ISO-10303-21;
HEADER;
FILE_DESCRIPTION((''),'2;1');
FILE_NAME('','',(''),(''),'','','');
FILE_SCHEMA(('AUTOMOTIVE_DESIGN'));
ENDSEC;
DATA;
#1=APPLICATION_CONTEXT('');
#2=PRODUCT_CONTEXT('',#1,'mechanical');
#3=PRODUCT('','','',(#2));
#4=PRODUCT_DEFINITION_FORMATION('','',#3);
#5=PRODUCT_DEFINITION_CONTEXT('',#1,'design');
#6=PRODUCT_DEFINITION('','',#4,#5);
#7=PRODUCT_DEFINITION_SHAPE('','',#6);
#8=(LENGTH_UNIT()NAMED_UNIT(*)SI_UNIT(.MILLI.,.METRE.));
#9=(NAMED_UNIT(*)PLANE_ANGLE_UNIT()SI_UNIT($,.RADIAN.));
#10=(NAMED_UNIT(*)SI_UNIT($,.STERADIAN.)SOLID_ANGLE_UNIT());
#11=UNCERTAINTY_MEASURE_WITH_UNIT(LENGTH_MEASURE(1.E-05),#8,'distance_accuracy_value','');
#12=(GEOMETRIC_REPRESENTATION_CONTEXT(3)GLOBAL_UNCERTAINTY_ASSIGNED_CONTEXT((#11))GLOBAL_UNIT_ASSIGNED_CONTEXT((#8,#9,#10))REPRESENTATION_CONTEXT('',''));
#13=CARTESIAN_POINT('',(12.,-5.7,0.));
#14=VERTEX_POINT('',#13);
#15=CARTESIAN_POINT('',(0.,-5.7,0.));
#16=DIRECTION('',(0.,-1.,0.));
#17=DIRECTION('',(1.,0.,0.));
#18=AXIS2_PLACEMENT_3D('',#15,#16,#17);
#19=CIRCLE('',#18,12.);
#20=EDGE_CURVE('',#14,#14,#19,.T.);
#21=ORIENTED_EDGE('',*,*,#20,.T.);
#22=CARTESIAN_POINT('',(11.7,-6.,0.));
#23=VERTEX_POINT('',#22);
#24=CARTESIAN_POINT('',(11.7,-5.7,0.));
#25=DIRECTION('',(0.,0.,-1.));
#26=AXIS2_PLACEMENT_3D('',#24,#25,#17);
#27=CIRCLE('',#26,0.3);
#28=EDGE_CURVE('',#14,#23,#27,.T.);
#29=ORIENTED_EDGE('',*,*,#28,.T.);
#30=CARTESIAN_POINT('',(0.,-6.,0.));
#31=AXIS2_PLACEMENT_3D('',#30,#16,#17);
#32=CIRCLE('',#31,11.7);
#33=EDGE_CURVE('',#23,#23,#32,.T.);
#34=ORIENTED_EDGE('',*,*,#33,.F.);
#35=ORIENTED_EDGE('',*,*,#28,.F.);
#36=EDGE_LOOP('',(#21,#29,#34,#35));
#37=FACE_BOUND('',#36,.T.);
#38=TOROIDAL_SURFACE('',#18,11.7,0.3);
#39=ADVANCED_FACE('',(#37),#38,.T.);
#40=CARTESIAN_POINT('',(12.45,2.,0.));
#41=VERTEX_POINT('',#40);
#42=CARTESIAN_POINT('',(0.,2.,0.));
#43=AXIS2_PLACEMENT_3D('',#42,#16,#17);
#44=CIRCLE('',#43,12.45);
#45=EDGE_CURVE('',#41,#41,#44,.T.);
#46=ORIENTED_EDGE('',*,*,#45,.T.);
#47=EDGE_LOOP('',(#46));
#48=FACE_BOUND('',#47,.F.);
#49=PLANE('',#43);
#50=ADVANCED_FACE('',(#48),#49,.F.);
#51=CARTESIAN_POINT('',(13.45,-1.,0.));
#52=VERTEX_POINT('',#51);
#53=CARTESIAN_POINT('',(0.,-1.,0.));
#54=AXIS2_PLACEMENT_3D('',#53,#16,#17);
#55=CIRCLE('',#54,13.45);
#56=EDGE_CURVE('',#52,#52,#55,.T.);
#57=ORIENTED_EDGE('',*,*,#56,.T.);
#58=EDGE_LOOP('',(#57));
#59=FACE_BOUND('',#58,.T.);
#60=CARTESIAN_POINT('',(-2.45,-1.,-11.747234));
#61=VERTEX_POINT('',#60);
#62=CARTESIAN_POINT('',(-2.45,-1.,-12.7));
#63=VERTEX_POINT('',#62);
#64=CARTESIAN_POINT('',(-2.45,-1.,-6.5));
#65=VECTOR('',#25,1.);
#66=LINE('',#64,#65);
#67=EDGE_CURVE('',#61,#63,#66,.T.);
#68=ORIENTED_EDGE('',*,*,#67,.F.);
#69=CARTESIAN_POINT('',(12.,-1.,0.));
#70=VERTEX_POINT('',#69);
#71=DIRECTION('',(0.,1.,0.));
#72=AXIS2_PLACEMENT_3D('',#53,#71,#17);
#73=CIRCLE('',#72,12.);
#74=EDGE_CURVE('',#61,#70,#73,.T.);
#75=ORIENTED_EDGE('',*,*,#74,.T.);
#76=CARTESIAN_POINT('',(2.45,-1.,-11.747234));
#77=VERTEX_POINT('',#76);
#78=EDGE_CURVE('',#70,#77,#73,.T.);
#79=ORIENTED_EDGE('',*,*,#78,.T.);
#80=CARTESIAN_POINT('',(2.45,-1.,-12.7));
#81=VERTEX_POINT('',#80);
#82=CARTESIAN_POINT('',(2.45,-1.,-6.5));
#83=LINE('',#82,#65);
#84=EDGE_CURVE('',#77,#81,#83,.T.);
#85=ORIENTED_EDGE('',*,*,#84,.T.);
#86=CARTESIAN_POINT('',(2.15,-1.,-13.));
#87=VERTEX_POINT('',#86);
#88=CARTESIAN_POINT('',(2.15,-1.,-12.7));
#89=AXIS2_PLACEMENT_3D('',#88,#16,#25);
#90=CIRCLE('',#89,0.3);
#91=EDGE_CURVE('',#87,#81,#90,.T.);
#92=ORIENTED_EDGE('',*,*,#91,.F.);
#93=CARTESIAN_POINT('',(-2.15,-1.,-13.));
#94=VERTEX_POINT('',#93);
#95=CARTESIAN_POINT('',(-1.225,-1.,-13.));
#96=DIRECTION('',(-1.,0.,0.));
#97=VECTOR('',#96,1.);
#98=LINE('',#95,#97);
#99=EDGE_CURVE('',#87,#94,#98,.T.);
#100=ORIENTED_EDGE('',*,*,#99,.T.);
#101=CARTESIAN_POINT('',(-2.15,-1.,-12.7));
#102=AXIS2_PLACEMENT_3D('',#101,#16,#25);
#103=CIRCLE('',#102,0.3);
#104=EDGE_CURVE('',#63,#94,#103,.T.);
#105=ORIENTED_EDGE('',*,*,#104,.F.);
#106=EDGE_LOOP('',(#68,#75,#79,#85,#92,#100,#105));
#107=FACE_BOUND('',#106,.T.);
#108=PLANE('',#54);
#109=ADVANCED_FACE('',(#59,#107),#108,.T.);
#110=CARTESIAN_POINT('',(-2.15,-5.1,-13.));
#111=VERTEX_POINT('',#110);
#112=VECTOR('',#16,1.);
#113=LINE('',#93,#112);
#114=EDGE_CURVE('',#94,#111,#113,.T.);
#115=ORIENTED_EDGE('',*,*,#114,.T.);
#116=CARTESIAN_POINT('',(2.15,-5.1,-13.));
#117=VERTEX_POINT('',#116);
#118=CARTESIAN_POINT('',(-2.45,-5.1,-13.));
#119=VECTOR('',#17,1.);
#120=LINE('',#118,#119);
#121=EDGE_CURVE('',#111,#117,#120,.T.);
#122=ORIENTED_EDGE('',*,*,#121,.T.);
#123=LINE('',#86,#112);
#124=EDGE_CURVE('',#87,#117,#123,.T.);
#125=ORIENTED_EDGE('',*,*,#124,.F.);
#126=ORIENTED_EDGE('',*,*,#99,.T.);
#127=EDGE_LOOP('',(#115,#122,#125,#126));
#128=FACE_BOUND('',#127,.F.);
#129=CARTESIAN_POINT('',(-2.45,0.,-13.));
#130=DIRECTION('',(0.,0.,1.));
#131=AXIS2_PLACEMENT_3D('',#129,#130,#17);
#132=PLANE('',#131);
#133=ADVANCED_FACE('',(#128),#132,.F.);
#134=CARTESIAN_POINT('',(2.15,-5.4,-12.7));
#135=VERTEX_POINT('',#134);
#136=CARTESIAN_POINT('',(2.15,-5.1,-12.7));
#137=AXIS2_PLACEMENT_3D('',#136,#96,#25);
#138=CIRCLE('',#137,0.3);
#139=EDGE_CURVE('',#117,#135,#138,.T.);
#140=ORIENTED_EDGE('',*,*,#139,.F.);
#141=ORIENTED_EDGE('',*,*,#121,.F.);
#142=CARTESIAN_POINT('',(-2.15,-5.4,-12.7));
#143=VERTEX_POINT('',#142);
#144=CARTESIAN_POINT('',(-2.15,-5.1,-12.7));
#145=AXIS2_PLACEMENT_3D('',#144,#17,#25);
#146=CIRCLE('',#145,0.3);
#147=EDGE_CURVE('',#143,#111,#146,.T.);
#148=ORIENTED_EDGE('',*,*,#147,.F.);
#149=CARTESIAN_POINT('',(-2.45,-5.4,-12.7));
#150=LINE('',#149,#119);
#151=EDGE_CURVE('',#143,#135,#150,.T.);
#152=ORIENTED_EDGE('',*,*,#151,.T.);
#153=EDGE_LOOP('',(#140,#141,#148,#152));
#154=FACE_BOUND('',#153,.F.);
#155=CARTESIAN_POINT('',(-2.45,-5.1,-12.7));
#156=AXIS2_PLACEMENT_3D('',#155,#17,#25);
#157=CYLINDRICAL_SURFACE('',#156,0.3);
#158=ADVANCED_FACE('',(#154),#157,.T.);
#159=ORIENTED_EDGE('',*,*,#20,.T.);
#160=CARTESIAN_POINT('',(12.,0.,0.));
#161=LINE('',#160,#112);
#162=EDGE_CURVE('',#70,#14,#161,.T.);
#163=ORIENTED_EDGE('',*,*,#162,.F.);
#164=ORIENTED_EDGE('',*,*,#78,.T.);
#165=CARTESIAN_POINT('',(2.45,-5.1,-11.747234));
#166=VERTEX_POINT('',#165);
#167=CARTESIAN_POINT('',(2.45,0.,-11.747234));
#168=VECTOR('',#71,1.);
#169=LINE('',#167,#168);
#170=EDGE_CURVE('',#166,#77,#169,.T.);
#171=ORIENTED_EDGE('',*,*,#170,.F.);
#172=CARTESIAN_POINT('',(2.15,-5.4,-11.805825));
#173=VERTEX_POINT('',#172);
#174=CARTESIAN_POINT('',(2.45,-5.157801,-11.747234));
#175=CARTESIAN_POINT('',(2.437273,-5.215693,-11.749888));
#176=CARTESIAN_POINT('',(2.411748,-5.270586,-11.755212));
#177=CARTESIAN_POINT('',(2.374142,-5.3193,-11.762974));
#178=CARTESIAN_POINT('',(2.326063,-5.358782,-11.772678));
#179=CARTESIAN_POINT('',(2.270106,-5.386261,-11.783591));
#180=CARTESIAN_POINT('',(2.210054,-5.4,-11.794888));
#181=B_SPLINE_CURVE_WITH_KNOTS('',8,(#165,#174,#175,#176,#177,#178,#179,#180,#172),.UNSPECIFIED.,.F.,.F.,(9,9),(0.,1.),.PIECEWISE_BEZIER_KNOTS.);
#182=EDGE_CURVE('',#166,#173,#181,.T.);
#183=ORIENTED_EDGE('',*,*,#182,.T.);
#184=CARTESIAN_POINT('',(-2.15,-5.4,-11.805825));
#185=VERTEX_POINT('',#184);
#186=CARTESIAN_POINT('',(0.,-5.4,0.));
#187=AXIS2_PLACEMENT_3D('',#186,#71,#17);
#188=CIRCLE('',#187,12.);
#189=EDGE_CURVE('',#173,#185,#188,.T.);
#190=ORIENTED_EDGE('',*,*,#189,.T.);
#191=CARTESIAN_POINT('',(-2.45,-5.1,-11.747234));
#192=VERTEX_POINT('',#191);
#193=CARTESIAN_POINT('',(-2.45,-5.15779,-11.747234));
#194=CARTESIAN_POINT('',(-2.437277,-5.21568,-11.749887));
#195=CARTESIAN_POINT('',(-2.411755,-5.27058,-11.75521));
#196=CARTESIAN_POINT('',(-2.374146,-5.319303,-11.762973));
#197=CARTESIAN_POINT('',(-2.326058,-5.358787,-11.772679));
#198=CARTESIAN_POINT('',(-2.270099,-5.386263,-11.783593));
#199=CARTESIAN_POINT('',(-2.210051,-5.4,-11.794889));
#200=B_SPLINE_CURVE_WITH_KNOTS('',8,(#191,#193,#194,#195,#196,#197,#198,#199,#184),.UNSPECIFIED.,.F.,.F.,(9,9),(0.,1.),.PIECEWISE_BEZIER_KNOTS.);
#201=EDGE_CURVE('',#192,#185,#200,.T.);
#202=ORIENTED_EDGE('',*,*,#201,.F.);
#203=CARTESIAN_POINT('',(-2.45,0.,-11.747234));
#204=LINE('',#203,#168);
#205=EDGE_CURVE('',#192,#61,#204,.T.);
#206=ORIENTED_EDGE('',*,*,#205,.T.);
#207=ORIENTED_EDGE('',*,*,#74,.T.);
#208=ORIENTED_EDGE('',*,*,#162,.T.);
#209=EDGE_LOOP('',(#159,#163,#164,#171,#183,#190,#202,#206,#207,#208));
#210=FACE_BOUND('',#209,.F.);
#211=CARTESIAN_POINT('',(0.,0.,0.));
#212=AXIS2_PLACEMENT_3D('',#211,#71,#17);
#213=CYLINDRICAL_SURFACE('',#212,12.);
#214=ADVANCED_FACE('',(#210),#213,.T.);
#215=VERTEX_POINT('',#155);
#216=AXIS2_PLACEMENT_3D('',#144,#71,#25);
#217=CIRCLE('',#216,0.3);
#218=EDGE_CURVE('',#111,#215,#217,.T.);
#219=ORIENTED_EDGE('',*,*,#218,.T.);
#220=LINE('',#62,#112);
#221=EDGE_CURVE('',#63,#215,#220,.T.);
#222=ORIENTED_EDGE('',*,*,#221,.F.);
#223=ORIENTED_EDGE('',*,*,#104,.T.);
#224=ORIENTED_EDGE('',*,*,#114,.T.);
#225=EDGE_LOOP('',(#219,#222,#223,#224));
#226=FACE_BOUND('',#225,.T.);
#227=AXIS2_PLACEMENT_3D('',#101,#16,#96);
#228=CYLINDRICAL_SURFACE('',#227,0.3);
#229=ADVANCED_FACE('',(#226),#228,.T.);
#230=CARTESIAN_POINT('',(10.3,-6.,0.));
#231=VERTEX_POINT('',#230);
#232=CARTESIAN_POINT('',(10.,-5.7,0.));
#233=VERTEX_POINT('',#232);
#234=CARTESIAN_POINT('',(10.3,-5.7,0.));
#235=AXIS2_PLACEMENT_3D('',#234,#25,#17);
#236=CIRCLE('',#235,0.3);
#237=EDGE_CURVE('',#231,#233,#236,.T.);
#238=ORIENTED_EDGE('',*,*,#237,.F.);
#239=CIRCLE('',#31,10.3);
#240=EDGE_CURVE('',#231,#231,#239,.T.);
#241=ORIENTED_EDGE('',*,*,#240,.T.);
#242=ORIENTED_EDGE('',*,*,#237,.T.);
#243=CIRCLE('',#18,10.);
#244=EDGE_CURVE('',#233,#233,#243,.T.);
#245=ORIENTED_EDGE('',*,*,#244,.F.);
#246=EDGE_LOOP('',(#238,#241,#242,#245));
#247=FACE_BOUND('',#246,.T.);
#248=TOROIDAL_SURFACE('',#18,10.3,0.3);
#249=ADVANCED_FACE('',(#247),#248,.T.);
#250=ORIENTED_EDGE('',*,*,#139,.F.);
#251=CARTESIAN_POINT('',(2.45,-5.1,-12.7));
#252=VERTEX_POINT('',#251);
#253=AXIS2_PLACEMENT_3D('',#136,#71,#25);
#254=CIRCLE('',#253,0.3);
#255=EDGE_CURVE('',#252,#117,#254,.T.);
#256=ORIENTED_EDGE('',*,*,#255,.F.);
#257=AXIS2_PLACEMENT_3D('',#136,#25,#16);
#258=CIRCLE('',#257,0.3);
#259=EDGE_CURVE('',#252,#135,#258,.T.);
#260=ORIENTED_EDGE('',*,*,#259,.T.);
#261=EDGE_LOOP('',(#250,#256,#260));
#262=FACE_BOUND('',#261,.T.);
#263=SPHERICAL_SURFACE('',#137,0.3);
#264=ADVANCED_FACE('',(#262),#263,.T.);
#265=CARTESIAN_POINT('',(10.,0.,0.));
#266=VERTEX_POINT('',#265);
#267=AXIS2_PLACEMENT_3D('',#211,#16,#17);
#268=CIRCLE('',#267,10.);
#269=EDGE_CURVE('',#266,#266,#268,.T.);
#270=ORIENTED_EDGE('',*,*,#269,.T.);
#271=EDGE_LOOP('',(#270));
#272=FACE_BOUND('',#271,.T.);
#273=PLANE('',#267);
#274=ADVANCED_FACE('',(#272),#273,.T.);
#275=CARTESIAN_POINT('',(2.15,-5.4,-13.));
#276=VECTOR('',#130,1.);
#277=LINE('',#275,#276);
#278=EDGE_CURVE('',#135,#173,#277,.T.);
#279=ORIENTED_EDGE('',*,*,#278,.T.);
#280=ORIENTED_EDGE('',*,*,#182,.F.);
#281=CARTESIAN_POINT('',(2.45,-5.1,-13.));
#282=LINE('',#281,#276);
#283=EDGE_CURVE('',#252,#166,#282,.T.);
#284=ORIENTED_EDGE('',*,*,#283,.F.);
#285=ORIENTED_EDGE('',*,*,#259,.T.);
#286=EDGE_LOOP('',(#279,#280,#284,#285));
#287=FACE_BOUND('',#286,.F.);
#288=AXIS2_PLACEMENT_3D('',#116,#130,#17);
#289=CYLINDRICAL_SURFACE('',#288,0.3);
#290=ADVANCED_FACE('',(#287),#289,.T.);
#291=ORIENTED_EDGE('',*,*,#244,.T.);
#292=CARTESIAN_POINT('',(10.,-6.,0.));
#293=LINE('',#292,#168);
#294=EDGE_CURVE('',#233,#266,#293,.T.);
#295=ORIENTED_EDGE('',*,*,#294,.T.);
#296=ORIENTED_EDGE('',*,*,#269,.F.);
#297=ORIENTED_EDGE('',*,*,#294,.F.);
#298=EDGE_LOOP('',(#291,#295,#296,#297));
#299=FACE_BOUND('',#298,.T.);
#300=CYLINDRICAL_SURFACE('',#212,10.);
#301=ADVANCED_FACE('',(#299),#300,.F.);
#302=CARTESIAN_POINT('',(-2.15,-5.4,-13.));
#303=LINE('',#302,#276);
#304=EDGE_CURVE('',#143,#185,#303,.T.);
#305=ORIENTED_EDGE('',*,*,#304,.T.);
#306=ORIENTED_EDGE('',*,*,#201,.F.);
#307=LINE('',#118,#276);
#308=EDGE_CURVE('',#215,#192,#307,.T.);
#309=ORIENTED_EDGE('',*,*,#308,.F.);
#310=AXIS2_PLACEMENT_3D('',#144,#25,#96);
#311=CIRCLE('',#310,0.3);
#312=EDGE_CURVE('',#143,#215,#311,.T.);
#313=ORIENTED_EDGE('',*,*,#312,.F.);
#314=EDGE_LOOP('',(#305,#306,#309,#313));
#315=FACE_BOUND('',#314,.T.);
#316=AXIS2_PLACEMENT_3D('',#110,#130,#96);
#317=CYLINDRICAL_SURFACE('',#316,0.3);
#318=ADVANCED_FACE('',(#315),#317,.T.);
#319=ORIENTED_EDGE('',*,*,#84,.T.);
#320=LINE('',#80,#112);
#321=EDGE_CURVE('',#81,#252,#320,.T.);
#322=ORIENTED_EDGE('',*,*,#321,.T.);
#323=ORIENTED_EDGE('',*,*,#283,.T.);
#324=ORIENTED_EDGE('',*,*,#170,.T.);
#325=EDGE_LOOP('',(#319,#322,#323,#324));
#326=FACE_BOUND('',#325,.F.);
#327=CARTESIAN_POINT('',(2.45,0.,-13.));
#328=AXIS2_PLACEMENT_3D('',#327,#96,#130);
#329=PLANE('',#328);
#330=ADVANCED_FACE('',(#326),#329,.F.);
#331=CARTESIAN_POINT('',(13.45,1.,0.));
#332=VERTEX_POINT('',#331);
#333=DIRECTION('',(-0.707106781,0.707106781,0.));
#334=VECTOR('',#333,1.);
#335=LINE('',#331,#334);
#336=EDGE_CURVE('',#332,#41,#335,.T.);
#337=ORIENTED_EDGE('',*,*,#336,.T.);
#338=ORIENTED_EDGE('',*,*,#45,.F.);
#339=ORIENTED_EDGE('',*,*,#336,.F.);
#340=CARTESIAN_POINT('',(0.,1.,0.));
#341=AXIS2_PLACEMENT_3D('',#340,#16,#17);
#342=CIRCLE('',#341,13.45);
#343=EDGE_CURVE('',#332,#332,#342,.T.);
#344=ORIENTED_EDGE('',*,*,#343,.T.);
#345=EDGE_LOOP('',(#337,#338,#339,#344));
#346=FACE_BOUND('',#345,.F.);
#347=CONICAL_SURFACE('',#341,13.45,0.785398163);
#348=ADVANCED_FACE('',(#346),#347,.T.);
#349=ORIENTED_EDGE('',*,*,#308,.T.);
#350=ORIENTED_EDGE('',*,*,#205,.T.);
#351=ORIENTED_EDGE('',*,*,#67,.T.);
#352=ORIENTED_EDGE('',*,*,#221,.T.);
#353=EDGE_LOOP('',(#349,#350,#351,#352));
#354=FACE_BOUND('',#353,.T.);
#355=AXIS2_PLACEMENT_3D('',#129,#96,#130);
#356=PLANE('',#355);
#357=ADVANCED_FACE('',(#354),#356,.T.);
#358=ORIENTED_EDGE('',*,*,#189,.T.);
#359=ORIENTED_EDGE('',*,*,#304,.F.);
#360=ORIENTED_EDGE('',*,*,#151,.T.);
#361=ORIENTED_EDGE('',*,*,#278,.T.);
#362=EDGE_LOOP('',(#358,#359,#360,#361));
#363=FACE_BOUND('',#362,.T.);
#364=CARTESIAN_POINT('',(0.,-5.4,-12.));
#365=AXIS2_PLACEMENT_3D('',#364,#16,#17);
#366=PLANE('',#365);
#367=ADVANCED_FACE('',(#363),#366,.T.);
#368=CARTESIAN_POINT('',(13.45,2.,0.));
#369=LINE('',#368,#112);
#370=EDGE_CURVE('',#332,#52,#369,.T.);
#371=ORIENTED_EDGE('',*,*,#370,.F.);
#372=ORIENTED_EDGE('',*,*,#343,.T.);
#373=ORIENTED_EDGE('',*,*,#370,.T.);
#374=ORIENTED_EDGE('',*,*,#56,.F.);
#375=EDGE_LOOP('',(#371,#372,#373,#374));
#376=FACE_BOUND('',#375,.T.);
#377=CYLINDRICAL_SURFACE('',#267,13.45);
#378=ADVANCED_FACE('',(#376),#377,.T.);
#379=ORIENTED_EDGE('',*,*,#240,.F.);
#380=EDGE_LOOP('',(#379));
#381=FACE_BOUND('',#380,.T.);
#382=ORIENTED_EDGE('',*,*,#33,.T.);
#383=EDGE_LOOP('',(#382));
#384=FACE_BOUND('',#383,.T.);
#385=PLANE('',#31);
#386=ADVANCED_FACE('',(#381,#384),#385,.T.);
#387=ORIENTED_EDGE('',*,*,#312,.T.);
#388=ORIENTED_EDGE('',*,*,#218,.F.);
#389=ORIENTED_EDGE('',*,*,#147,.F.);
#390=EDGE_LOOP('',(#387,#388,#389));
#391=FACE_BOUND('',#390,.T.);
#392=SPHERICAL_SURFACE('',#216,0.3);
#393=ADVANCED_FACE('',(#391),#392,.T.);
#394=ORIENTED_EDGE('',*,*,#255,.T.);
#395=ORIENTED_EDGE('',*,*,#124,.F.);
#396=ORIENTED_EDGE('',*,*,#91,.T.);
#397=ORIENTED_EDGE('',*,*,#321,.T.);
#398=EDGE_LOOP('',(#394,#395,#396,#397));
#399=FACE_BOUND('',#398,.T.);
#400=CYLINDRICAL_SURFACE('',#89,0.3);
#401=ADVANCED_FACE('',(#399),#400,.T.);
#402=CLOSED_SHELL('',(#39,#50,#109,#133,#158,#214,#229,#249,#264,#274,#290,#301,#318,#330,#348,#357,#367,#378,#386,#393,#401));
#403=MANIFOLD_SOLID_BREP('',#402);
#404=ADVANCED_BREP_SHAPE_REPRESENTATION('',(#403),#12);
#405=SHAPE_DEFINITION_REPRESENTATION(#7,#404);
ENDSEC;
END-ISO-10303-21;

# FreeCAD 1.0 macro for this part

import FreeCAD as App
import Part
import Sketcher
Q = App.Units.Quantity


def edges_at(feature, points):
    """Names of the edges that pass closest to the given points."""
    edges = feature.Shape.Edges
    near = lambda p: min(range(len(edges)), key=lambda i: edges[i].distToShape(Part.Vertex(*p))[0])
    return sorted({f"Edge{near(p) + 1}" for p in points})

doc = App.newDocument("Part")
body = doc.addObject("PartDesign::Body", "Body")

# Sketch on XZ plane
sketch1 = body.newObject("Sketcher::SketchObject", "Sketch")
sketch1.AttachmentSupport = (doc.getObject("XZ_Plane"), [""])
sketch1.MapMode = "FlatFace"
sketch1.addGeometry([
    Part.Circle(App.Vector(0, 0, 0), App.Vector(0, 0, 1), 12),
    Part.Circle(App.Vector(0, 0, 0), App.Vector(0, 0, 1), 10),
], False)
sketch1.addConstraint([
    Sketcher.Constraint("Coincident", 0, 3, -1, 1),
    Sketcher.Constraint("Coincident", 1, 3, -1, 1),
    Sketcher.Constraint("Diameter", 0, Q("24 mm")),
    Sketcher.Constraint("Diameter", 1, Q("20 mm")),
])
pad1 = body.newObject("PartDesign::Pad", "Pad")
pad1.Profile = sketch1
pad1.Length = 6

# Sketch on XZ plane
sketch2 = body.newObject("Sketcher::SketchObject", "Sketch001")
sketch2.AttachmentSupport = (doc.getObject("XZ_Plane"), [""])
sketch2.MapMode = "FlatFace"
sketch2.addGeometry(Part.Circle(App.Vector(0, 0, 0), App.Vector(0, 0, 1), 13), False)
sketch2.addConstraint([
    Sketcher.Constraint("Coincident", 0, 3, -1, 1),
    Sketcher.Constraint("Diameter", 0, Q("26.9 mm")),
])
pad2 = body.newObject("PartDesign::Pad", "Pad001")
pad2.Profile = sketch2
pad2.Type = "TwoLengths"
pad2.Length = 1
pad2.Length2 = 2

# Sketch on XZ plane
sketch3 = body.newObject("Sketcher::SketchObject", "Sketch002")
sketch3.AttachmentSupport = (doc.getObject("XZ_Plane"), [""])
sketch3.MapMode = "FlatFace"
sketch3.addGeometry(Part.Circle(App.Vector(0, 0, 0), App.Vector(0, 0, 1), 10), False)
sketch3.addConstraint([
    Sketcher.Constraint("Coincident", 0, 3, -1, 1),
    Sketcher.Constraint("Diameter", 0, Q("20 mm")),
])
pocket1 = body.newObject("PartDesign::Pocket", "Pocket")
pocket1.Profile = sketch3
pocket1.Type = "ThroughAll"
pocket1.Reversed = True

# Sketch on XZ plane
sketch4 = body.newObject("Sketcher::SketchObject", "Sketch003")
sketch4.AttachmentSupport = (doc.getObject("XZ_Plane"), [""])
sketch4.MapMode = "FlatFace"
sketch4.addGeometry([
    Part.LineSegment(App.Vector(-2.5, -11, 0), App.Vector(-2.5, -13, 0)),
    Part.LineSegment(App.Vector(-2.5, -13, 0), App.Vector(2.5, -13, 0)),
    Part.LineSegment(App.Vector(2.5, -13, 0), App.Vector(2.5, -11, 0)),
    Part.LineSegment(App.Vector(2.5, -11, 0), App.Vector(-2.5, -11, 0)),
], False)
sketch4.addConstraint([
    Sketcher.Constraint("Coincident", 0, 2, 1, 1),
    Sketcher.Constraint("Coincident", 1, 2, 2, 1),
    Sketcher.Constraint("Coincident", 2, 2, 3, 1),
    Sketcher.Constraint("Coincident", 3, 2, 0, 1),
    Sketcher.Constraint("Vertical", 0),
    Sketcher.Constraint("Horizontal", 1),
    Sketcher.Constraint("Vertical", 2),
    Sketcher.Constraint("Horizontal", 3),
    Sketcher.Constraint("DistanceY", 0, 2, 0, 1, Q("2 mm")),
    Sketcher.Constraint("DistanceX", 1, 1, 1, 2, Q("4.9 mm")),
    Sketcher.Constraint("DistanceY", 0, 2, -1, 1, Q("13 mm")),
    Sketcher.Constraint("DistanceX", 0, 2, -1, 1, Q("2.45 mm")),
])
pad3 = body.newObject("PartDesign::Pad", "Pad002")
pad3.Profile = sketch4
pad3.Length = 5.4
doc.recompute()

chamfer = body.newObject("PartDesign::Chamfer", "Chamfer")
chamfer.Base = (pad3, edges_at(pad3, [(-13.45, 2, 0)]))
chamfer.Size = 1
doc.recompute()

fillet = body.newObject("PartDesign::Fillet", "Fillet")
fillet.Base = (chamfer, edges_at(chamfer, [
    (-2.45, -3.2, -13),
    (0, -5.4, -13),
    (2.45, -3.2, -13),
    (-2.45, -5.4, -12.374),
    (2.45, -5.4, -12.374),
]))
fillet.Radius = 0.3
doc.recompute()

fillet2 = body.newObject("PartDesign::Fillet", "Fillet001")
fillet2.Base = (fillet, edges_at(fillet, [(-12, -6, 0), (-10, -6, 0)]))
fillet2.Radius = 0.3

doc.recompute()
